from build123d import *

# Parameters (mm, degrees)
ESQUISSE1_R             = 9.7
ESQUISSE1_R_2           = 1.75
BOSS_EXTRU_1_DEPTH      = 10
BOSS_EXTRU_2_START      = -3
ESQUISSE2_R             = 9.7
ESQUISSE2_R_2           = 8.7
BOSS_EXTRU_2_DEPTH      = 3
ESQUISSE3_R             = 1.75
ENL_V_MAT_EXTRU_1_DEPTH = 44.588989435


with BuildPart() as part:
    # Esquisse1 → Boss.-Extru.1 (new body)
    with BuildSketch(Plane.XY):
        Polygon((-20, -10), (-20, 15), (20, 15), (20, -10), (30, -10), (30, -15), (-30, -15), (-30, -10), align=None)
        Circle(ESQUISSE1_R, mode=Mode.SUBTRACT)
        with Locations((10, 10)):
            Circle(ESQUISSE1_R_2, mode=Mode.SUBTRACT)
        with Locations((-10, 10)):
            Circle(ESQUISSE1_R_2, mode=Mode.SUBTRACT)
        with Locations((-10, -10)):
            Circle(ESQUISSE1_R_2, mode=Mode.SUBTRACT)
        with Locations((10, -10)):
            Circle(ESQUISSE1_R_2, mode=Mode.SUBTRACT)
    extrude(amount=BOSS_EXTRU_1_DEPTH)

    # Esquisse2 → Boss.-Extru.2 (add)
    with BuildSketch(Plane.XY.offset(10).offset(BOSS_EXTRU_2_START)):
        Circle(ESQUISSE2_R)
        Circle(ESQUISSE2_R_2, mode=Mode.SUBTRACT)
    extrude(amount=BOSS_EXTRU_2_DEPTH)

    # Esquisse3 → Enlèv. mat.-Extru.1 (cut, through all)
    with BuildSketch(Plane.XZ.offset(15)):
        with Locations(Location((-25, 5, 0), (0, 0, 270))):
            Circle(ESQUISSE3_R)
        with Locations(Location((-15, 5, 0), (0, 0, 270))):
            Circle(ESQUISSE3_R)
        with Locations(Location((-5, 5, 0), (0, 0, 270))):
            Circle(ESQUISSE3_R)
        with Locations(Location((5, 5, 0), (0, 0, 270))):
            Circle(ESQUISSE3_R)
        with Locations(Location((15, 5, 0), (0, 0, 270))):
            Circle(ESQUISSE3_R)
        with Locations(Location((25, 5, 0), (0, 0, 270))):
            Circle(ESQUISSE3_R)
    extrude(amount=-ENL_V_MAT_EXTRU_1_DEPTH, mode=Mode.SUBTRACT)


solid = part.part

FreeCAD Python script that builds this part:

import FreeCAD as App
import Part
import Sketcher

V = App.Vector
Q = App.Units.Quantity


def add_polygon(sketch, points):
    """Adds a closed chain of lines whose ends are joined by coincident constraints."""
    first, n = sketch.GeometryCount, len(points)
    for a, b in zip(points, points[1:] + points[:1]):
        sketch.addGeometry(Part.LineSegment(App.Vector(*a, 0), App.Vector(*b, 0)), False)
    for i in range(n):
        sketch.addConstraint(Sketcher.Constraint("Coincident", first + i, 2, first + (i + 1) % n, 1))

doc = App.newDocument("Part")
body = doc.addObject("PartDesign::Body", "Body")

sketch1 = doc.addObject("Sketcher::SketchObject", "Sketch")
body.addObject(sketch1)
sketch1.AttachmentSupport = (doc.XY_Plane, [""])
sketch1.MapMode = "FlatFace"
add_polygon(sketch1, [(-20, 15), (-20, -10), (-30, -10), (-30, -15), (30, -15), (30, -10), (20, -10), (20, 15)])
sketch1.addGeometry(Part.Circle(V(10, -10, 0), V(0, 0, 1), 1.8), False)
sketch1.addGeometry(Part.Circle(V(-10, -10, 0), V(0, 0, 1), 1.8), False)
sketch1.addGeometry(Part.Circle(V(10, 10, 0), V(0, 0, 1), 1.8), False)
sketch1.addGeometry(Part.Circle(V(0, 0, 0), V(0, 0, 1), 9.7), False)
sketch1.addGeometry(Part.Circle(V(-10, 10, 0), V(0, 0, 1), 1.8), False)
sketch1.addConstraint([
    Sketcher.Constraint("Vertical", 0),
    Sketcher.Constraint("Horizontal", 1),
    Sketcher.Constraint("Vertical", 2),
    Sketcher.Constraint("Horizontal", 3),
    Sketcher.Constraint("Vertical", 4),
    Sketcher.Constraint("Horizontal", 5),
    Sketcher.Constraint("Vertical", 6),
    Sketcher.Constraint("Horizontal", 7),
    Sketcher.Constraint("Coincident", 11, 3, -1, 1),
    Sketcher.Constraint("Equal", 8, 9),
    Sketcher.Constraint("Equal", 9, 10),
    Sketcher.Constraint("Equal", 10, 12),
    Sketcher.Constraint("Symmetric", 9, 3, 10, 3, -1, 1),
    Sketcher.Constraint("Symmetric", 8, 3, 12, 3, -1, 1),
    Sketcher.Constraint("Symmetric", 8, 3, 9, 3, -2),
    Sketcher.Constraint("Symmetric", 1, 2, 4, 2, -2),
    Sketcher.Constraint("Horizontal", 9, 3, 0, 2),
    Sketcher.Constraint("Equal", 1, 5),
    Sketcher.Constraint("Diameter", 8, Q("3.5 mm")),
    Sketcher.Constraint("Diameter", 11, Q("19.4 mm")),
    Sketcher.Constraint("DistanceX", 1, 2, 1, 1, Q("10 mm")),
    Sketcher.Constraint("DistanceX", 3, 1, 3, 2, Q("60 mm")),
    Sketcher.Constraint("DistanceY", 0, 2, 0, 1, Q("25 mm")),
    Sketcher.Constraint("DistanceY", 2, 2, 2, 1, Q("5 mm")),
    Sketcher.Constraint("DistanceX", -1, 1, 8, 3, Q("10 mm")),
    Sketcher.Constraint("DistanceY", 8, 3, -1, 1, Q("10 mm")),
])
pad1 = doc.addObject("PartDesign::Pad", "Pad")
body.addObject(pad1)
pad1.Profile = sketch1
pad1.Length = 10

sketch2 = doc.addObject("Sketcher::SketchObject", "Sketch001")
body.addObject(sketch2)
sketch2.AttachmentSupport = (doc.XY_Plane, [""])
sketch2.MapMode = "FlatFace"
sketch2.AttachmentOffset = App.Placement(V(0, 0, 7), App.Rotation())
sketch2.addGeometry([
    Part.Circle(V(0, 0, 0), V(0, 0, 1), 10),
    Part.Circle(V(0, 0, 0), V(0, 0, 1), 9),
], False)
sketch2.addConstraint([
    Sketcher.Constraint("Coincident", 0, 3, -1, 1),
    Sketcher.Constraint("Coincident", 1, 3, -1, 1),
    Sketcher.Constraint("Diameter", 0, Q("19.4 mm")),
    Sketcher.Constraint("Diameter", 1, Q("17.4 mm")),
])
pad2 = doc.addObject("PartDesign::Pad", "Pad001")
body.addObject(pad2)
pad2.Profile = sketch2
pad2.Length = 3

sketch3 = doc.addObject("Sketcher::SketchObject", "Sketch002")
body.addObject(sketch3)
sketch3.AttachmentSupport = (doc.XZ_Plane, [""])
sketch3.MapMode = "FlatFace"
sketch3.AttachmentOffset = App.Placement(V(0, 0, 15), App.Rotation())
sketch3.addGeometry([
    Part.Circle(V(-25, 5, 0), V(0, 0, 1), 1.8),
    Part.Circle(V(-15, 5, 0), V(0, 0, 1), 1.8),
    Part.Circle(V(-5, 5, 0), V(0, 0, 1), 1.8),
    Part.Circle(V(5, 5, 0), V(0, 0, 1), 1.8),
    Part.Circle(V(15, 5, 0), V(0, 0, 1), 1.8),
    Part.Circle(V(25, 5, 0), V(0, 0, 1), 1.8),
], False)
sketch3.addConstraint([
    Sketcher.Constraint("Equal", 0, 1),
    Sketcher.Constraint("Equal", 1, 2),
    Sketcher.Constraint("Equal", 2, 3),
    Sketcher.Constraint("Equal", 3, 4),
    Sketcher.Constraint("Equal", 4, 5),
    Sketcher.Constraint("Symmetric", 2, 3, 3, 3, -2),
    Sketcher.Constraint("Symmetric", 1, 3, 4, 3, -2),
    Sketcher.Constraint("Symmetric", 0, 3, 5, 3, -2),
    Sketcher.Constraint("Horizontal", 0, 3, 1, 3),
    Sketcher.Constraint("Horizontal", 1, 3, 2, 3),
    Sketcher.Constraint("Diameter", 0, Q("3.5 mm")),
    Sketcher.Constraint("DistanceX", 0, 3, -1, 1, Q("25 mm")),
    Sketcher.Constraint("DistanceY", -1, 1, 0, 3, Q("5 mm")),
    Sketcher.Constraint("DistanceX", 1, 3, -1, 1, Q("15 mm")),
    Sketcher.Constraint("DistanceX", 2, 3, -1, 1, Q("5 mm")),
])
pocket1 = doc.addObject("PartDesign::Pocket", "Pocket")
body.addObject(pocket1)
pocket1.Profile = sketch3
pocket1.Type = "ThroughAll"

doc.recompute()
